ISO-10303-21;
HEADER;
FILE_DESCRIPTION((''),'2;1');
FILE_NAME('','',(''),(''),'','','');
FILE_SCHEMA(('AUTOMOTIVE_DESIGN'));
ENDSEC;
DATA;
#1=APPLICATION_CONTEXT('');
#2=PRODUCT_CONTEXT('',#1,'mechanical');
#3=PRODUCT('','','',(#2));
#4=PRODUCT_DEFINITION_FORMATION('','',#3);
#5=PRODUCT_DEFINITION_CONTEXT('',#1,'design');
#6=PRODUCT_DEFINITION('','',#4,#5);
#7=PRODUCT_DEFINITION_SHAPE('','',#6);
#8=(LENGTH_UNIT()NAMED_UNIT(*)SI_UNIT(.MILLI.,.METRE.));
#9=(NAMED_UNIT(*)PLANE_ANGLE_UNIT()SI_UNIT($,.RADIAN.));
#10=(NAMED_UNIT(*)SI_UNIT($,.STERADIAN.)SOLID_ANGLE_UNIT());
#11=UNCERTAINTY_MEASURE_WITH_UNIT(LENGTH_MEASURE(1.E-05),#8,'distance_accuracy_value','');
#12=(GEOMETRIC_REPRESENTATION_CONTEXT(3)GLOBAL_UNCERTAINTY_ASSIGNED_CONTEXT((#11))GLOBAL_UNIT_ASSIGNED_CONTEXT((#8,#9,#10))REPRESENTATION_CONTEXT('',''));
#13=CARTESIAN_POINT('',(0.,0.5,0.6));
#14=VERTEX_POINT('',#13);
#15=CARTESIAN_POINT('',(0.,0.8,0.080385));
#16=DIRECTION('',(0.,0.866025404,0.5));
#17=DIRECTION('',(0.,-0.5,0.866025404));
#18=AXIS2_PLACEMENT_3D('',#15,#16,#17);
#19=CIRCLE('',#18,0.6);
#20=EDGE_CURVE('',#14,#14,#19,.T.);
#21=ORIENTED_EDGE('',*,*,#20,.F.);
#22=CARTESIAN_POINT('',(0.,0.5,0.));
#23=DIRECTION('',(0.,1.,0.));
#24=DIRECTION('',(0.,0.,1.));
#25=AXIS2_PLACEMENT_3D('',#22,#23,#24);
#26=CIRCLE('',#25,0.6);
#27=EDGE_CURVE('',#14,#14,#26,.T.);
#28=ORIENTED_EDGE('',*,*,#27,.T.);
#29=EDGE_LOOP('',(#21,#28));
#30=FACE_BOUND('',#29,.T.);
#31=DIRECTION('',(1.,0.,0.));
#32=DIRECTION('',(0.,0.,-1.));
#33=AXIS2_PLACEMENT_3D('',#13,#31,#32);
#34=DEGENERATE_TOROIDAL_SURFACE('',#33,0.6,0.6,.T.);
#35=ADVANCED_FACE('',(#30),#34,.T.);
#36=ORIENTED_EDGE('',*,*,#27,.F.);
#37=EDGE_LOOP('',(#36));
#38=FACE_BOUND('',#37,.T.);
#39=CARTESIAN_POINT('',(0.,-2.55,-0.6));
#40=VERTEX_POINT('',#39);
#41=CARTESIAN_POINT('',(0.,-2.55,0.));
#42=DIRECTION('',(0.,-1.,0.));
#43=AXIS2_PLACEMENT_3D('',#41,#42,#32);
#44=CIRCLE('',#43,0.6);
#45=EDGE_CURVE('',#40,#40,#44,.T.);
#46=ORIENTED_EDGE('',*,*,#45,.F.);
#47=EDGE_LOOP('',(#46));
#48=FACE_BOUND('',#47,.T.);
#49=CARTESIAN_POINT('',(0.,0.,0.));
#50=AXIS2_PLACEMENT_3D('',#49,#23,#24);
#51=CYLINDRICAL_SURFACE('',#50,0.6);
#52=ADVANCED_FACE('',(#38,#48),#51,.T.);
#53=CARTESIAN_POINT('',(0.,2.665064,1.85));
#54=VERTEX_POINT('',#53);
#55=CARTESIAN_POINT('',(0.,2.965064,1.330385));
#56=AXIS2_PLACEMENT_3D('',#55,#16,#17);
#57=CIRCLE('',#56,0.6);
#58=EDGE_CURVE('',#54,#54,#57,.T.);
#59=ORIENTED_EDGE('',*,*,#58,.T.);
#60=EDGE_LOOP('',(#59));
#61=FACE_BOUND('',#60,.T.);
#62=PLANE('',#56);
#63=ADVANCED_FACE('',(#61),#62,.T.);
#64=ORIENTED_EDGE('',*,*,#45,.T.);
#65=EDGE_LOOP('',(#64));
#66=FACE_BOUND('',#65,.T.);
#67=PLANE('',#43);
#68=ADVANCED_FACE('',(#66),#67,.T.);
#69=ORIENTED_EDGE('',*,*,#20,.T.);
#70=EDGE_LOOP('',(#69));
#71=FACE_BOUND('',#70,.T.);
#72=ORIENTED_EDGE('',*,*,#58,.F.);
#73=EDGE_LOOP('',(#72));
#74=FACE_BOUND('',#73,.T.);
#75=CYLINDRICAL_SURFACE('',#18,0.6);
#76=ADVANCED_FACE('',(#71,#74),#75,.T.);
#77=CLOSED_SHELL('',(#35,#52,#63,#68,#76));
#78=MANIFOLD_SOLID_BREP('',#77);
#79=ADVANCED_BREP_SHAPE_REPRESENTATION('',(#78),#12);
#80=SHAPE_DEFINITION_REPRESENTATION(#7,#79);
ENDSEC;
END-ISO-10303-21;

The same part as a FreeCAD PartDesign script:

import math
import FreeCAD as App
import Part
import Sketcher
Q = App.Units.Quantity

doc = App.newDocument("Part")
params = doc.addObject("Spreadsheet::Sheet", "Params")
for row, (alias, value) in enumerate([
    ("sketch1_diameter", "1.2 mm"),
    ("sketch2_radius", "0.6 mm"),
    ("sketch2_width", "0.5 mm"),
    ("sketch2_length", "2.5 mm"),
    ("sketch3_diameter", "1.2 mm"),
    ("pad1_length", "2.55 mm"),
], start=1):
    params.set(f"A{row}", alias)
    params.set(f"B{row}", "=" + value)
    params.setAlias(f"B{row}", alias)

body = doc.addObject("PartDesign::Body", "Body")

# Sketch on XZ plane
sketch1 = body.newObject("Sketcher::SketchObject", "Sketch")
sketch1.AttachmentSupport = (doc.getObject("XZ_Plane"), [""])
sketch1.MapMode = "FlatFace"
sketch1.addGeometry(Part.Circle(App.Vector(0, 0, 0), App.Vector(0, 0, 1), 0.6), False)
sketch1.addConstraint(Sketcher.Constraint("Coincident", 0, 3, -1, 1))
sketch1.addConstraint(Sketcher.Constraint("Diameter", 0, 1.2))
sketch1.setExpression("Constraints[1]", "Params.sketch1_diameter")

# Sketch on YZ plane
sketch2 = body.newObject("Sketcher::SketchObject", "Sketch001")
sketch2.AttachmentSupport = (doc.getObject("YZ_Plane"), [""])
sketch2.MapMode = "FlatFace"
sketch2.addGeometry(Part.LineSegment(App.Vector(0, 0, 0), App.Vector(0.5, 0, 0)), False)
sketch2.addGeometry(Part.ArcOfCircle(Part.Circle(App.Vector(0.5, 0.6, 0), App.Vector(0, 0, 1), 0.6), math.radians(-90), math.radians(-60)), False)
sketch2.addGeometry(Part.LineSegment(App.Vector(0.8, 0.08, 0), App.Vector(2.97, 1.33, 0)), False)
sketch2.addConstraint(Sketcher.Constraint("Tangent", 0, 2, 1, 1))
sketch2.addConstraint(Sketcher.Constraint("Tangent", 1, 2, 2, 1))
sketch2.addConstraint(Sketcher.Constraint("Horizontal", 0))
sketch2.addConstraint(Sketcher.Constraint("Coincident", 0, 1, -1, 1))
sketch2.addConstraint(Sketcher.Constraint("Radius", 1, 0.6))
sketch2.addConstraint(Sketcher.Constraint("Angle", 2, Q("30 deg")))
sketch2.addConstraint(Sketcher.Constraint("DistanceX", 0, 1, 0, 2, 0.5))
sketch2.addConstraint(Sketcher.Constraint("Distance", 2, 2.5))
sketch2.setExpression("Constraints[4]", "Params.sketch2_radius")
sketch2.setExpression("Constraints[6]", "Params.sketch2_width")
sketch2.setExpression("Constraints[7]", "Params.sketch2_length")
doc.recompute()

additivepipe = body.newObject("PartDesign::AdditivePipe", "AdditivePipe")
additivepipe.Profile = sketch1
additivepipe.Spine = (sketch2, ["Edge1", "Edge2", "Edge3"])

# Sketch on XZ plane
sketch3 = body.newObject("Sketcher::SketchObject", "Sketch002")
sketch3.AttachmentSupport = (doc.getObject("XZ_Plane"), [""])
sketch3.MapMode = "FlatFace"
sketch3.addGeometry(Part.Circle(App.Vector(0, 0, 0), App.Vector(0, 0, 1), 0.6), False)
sketch3.addConstraint(Sketcher.Constraint("Coincident", 0, 3, -1, 1))
sketch3.addConstraint(Sketcher.Constraint("Diameter", 0, 1.2))
sketch3.setExpression("Constraints[1]", "Params.sketch3_diameter")
pad1 = body.newObject("PartDesign::Pad", "Pad")
pad1.Profile = sketch3
pad1.setExpression("Length", "Params.pad1_length")

doc.recompute()
